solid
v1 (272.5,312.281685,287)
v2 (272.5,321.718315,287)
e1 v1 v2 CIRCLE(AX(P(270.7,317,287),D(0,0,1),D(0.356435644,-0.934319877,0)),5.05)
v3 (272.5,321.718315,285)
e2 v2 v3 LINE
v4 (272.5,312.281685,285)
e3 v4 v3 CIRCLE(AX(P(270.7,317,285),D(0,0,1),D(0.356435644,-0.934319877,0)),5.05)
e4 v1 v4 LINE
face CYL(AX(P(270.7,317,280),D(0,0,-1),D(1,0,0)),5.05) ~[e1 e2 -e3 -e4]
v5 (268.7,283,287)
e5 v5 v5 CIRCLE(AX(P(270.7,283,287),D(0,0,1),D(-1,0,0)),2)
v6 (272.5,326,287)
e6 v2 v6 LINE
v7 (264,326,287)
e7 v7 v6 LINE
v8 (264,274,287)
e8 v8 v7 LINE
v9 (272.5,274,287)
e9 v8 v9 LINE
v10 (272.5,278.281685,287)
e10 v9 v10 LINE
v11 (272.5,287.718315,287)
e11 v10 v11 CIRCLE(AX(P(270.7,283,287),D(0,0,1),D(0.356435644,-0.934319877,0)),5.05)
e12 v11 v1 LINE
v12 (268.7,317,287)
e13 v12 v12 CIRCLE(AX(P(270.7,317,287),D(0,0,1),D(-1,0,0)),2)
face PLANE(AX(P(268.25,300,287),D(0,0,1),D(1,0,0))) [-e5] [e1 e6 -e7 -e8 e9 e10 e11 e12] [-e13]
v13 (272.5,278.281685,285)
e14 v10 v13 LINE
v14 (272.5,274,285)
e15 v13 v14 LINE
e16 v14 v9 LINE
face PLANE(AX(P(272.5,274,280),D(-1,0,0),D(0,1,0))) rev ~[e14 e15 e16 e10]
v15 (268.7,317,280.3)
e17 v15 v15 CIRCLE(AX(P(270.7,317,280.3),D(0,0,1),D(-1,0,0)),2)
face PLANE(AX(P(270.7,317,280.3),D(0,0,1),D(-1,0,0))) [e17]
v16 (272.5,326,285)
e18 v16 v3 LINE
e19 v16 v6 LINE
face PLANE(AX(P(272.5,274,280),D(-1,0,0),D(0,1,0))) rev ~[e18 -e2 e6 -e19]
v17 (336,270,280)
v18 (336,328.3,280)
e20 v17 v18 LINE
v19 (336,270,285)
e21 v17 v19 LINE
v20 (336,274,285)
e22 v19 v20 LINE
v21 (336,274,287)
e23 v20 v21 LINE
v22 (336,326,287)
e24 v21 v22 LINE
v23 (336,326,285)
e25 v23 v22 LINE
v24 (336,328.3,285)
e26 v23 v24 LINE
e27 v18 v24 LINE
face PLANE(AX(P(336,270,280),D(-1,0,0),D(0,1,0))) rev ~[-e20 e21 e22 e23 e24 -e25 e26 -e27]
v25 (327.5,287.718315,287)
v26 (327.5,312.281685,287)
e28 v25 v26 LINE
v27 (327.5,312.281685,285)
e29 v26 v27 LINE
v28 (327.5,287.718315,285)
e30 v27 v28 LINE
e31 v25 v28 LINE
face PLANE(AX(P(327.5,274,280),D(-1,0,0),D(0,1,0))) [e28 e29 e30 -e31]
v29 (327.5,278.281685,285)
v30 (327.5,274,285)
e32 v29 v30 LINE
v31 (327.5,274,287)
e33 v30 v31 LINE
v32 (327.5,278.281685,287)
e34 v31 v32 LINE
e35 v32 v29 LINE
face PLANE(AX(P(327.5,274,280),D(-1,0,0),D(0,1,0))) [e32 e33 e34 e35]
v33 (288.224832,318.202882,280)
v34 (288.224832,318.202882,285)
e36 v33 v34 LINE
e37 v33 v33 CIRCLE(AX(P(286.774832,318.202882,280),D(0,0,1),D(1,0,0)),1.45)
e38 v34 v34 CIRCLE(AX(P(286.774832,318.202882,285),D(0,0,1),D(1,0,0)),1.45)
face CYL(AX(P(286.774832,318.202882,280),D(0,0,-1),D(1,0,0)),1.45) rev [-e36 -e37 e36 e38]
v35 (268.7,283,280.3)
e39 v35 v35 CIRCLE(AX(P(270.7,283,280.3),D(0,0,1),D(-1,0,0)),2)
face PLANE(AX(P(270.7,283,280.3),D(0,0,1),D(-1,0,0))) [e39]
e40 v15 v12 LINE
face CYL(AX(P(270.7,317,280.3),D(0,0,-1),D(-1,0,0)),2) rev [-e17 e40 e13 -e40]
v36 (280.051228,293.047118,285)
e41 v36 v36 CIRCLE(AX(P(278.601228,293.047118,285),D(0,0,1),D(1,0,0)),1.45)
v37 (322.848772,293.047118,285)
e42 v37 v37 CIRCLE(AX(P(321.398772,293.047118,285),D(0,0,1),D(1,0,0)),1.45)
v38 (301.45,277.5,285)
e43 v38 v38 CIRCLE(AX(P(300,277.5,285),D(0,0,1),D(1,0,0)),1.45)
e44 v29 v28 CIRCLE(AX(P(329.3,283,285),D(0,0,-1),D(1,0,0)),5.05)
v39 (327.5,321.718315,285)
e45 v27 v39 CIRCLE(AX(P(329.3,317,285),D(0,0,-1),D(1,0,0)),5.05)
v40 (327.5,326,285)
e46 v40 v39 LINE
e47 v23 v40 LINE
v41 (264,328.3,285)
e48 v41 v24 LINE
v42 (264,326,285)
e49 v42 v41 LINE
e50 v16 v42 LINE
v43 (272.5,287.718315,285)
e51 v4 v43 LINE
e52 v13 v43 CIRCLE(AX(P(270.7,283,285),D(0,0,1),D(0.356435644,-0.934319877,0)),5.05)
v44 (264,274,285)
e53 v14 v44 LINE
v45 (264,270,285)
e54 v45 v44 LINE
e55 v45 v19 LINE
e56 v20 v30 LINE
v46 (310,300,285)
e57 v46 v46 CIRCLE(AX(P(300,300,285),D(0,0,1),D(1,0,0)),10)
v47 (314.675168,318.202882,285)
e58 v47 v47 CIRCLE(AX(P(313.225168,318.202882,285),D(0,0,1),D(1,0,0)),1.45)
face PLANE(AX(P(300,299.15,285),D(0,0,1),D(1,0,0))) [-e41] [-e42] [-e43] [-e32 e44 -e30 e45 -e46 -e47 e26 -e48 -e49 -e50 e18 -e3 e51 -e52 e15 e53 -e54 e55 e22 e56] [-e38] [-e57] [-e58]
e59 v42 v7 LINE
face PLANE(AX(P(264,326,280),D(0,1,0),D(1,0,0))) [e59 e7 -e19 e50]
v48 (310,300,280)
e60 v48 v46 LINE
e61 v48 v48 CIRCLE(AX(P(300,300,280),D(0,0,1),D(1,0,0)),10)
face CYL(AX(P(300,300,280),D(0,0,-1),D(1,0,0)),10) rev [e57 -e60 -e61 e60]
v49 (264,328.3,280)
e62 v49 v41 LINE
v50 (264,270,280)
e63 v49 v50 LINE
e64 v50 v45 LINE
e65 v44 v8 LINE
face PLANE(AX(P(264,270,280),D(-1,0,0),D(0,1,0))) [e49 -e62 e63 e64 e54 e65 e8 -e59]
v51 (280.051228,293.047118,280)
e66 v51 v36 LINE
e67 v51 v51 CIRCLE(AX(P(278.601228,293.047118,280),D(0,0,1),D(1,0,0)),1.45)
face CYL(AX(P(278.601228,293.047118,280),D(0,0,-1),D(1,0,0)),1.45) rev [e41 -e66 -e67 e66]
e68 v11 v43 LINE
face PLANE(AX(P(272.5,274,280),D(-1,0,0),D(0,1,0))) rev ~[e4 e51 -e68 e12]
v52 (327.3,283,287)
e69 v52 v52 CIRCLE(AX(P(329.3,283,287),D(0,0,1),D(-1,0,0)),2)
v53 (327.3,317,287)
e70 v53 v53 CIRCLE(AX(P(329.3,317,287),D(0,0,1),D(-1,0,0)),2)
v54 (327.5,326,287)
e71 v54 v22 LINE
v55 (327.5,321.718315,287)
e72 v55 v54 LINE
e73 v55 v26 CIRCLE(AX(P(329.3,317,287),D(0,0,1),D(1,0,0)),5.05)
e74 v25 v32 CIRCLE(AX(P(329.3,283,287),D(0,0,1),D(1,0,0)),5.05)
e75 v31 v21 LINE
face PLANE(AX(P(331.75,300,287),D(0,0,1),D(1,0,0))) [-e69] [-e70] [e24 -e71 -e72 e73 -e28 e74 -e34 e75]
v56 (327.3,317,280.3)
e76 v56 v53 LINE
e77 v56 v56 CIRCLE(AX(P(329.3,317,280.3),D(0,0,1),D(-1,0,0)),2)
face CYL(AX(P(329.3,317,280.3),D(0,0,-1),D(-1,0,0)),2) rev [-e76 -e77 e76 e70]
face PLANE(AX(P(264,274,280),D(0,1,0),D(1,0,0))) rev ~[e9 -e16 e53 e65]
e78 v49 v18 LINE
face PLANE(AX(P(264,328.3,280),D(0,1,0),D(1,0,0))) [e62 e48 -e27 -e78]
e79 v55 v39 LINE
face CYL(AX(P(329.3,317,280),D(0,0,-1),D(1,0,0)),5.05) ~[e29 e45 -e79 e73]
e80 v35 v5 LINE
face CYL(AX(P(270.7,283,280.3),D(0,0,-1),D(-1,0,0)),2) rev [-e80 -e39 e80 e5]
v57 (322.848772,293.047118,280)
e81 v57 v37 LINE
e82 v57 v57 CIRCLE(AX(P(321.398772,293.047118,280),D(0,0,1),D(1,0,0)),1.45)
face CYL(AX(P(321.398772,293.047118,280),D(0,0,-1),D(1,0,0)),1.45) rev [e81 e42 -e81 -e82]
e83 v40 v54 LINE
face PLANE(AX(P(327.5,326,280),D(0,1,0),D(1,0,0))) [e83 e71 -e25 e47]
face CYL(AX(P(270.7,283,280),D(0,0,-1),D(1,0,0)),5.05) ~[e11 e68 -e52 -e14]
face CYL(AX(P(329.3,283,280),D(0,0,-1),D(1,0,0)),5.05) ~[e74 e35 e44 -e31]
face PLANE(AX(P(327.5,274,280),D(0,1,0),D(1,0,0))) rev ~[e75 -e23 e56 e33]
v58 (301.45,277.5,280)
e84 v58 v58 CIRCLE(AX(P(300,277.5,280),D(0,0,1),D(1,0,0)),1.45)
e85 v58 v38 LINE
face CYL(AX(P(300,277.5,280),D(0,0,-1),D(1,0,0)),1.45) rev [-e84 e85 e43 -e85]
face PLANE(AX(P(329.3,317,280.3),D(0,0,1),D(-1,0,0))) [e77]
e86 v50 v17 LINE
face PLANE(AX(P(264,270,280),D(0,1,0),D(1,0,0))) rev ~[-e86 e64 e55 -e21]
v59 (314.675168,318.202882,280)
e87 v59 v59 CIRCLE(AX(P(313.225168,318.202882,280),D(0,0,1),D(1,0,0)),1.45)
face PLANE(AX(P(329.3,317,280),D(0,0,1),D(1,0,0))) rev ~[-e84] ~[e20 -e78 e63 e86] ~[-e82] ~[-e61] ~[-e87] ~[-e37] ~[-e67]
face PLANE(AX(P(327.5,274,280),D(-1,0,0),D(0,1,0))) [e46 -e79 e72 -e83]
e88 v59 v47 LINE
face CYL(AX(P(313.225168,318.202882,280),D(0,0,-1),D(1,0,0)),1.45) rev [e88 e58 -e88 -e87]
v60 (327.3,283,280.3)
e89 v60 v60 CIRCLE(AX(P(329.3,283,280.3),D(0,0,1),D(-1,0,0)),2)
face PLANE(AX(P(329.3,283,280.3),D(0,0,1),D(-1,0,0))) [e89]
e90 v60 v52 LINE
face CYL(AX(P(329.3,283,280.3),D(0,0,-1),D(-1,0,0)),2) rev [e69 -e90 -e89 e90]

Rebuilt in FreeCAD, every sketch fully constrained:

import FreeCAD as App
import Part
import Sketcher

doc = App.newDocument("Part")
body = doc.addObject("PartDesign::Body", "Body")

sketch1 = doc.addObject("Sketcher::SketchObject", "Sketch")
body.addObject(sketch1)
sketch1.AttachmentSupport = (doc.XY_Plane, [""])
sketch1.MapMode = "FlatFace"
sketch1.AttachmentOffset = App.Placement(App.Vector(0, 0, 280), App.Rotation())
sketch1.addGeometry([
    Part.LineSegment(App.Vector(264, 328.3, 0), App.Vector(264, 270, 0)),
    Part.LineSegment(App.Vector(264, 270, 0), App.Vector(336, 270, 0)),
    Part.LineSegment(App.Vector(336, 270, 0), App.Vector(336, 328.3, 0)),
    Part.LineSegment(App.Vector(336, 328.3, 0), App.Vector(264, 328.3, 0)),
    Part.Circle(App.Vector(300, 277.5, 0), App.Vector(0, 0, 1), 1.4),
    Part.Circle(App.Vector(278.6, 293, 0), App.Vector(0, 0, 1), 1.4),
    Part.Circle(App.Vector(321.4, 293, 0), App.Vector(0, 0, 1), 1.4),
    Part.Circle(App.Vector(300, 300, 0), App.Vector(0, 0, 1), 10),
    Part.Circle(App.Vector(286.8, 318.2, 0), App.Vector(0, 0, 1), 1.4),
    Part.Circle(App.Vector(313.2, 318.2, 0), App.Vector(0, 0, 1), 1.4),
], False)
sketch1.addConstraint([
    Sketcher.Constraint("Coincident", 0, 2, 1, 1),
    Sketcher.Constraint("Coincident", 1, 2, 2, 1),
    Sketcher.Constraint("Coincident", 2, 2, 3, 1),
    Sketcher.Constraint("Coincident", 3, 2, 0, 1),
    Sketcher.Constraint("Vertical", 0),
    Sketcher.Constraint("Horizontal", 1),
    Sketcher.Constraint("Vertical", 2),
    Sketcher.Constraint("Horizontal", 3),
    Sketcher.Constraint("Equal", 4, 5),
    Sketcher.Constraint("Equal", 5, 6),
    Sketcher.Constraint("Equal", 6, 8),
    Sketcher.Constraint("Equal", 8, 9),
    Sketcher.Constraint("Horizontal", 5, 3, 6, 3),
    Sketcher.Constraint("Horizontal", 8, 3, 9, 3),
    Sketcher.Constraint("Vertical", 4, 3, 7, 3),
    Sketcher.Constraint("Diameter", 7, 20.0),
    Sketcher.Constraint("Diameter", 4, 2.9),
    Sketcher.Constraint("DistanceX", 1, 1, 1, 2, 72.0),
    Sketcher.Constraint("DistanceY", 0, 2, 0, 1, 58.3),
    Sketcher.Constraint("DistanceX", -1, 1, 4, 3, 300.0),
    Sketcher.Constraint("DistanceY", -1, 1, 7, 3, 300.0),
    Sketcher.Constraint("DistanceX", -1, 1, 0, 2, 264.0),
    Sketcher.Constraint("DistanceY", -1, 1, 0, 2, 270.0),
    Sketcher.Constraint("DistanceY", -1, 1, 4, 3, 277.5),
    Sketcher.Constraint("DistanceX", -1, 1, 5, 3, 278.601228),
    Sketcher.Constraint("DistanceX", -1, 1, 6, 3, 321.398772),
    Sketcher.Constraint("DistanceX", -1, 1, 8, 3, 286.774832),
    Sketcher.Constraint("DistanceX", -1, 1, 9, 3, 313.225168),
    Sketcher.Constraint("DistanceY", -1, 1, 5, 3, 293.047118),
    Sketcher.Constraint("DistanceY", -1, 1, 8, 3, 318.202882),
])
pad1 = doc.addObject("PartDesign::Pad", "Pad")
body.addObject(pad1)
pad1.Profile = sketch1
pad1.Length = 5

sketch2 = doc.addObject("Sketcher::SketchObject", "Sketch001")
body.addObject(sketch2)
sketch2.AttachmentSupport = (doc.XY_Plane, [""])
sketch2.MapMode = "FlatFace"
sketch2.AttachmentOffset = App.Placement(App.Vector(0, 0, 280), App.Rotation())
sketch2.addGeometry([
    Part.LineSegment(App.Vector(264, 326, 0), App.Vector(264, 274, 0)),
    Part.LineSegment(App.Vector(264, 274, 0), App.Vector(272, 274, 0)),
    Part.LineSegment(App.Vector(272, 274, 0), App.Vector(272, 326, 0)),
    Part.LineSegment(App.Vector(272, 326, 0), App.Vector(264, 326, 0)),
], False)
sketch2.addConstraint([
    Sketcher.Constraint("Coincident", 0, 2, 1, 1),
    Sketcher.Constraint("Coincident", 1, 2, 2, 1),
    Sketcher.Constraint("Coincident", 2, 2, 3, 1),
    Sketcher.Constraint("Coincident", 3, 2, 0, 1),
    Sketcher.Constraint("Vertical", 0),
    Sketcher.Constraint("Horizontal", 1),
    Sketcher.Constraint("Vertical", 2),
    Sketcher.Constraint("Horizontal", 3),
    Sketcher.Constraint("DistanceY", 0, 2, 0, 1, 52.0),
    Sketcher.Constraint("DistanceX", 1, 1, 1, 2, 8.5),
    Sketcher.Constraint("DistanceX", -1, 1, 0, 2, 264.0),
    Sketcher.Constraint("DistanceY", -1, 1, 0, 2, 274.0),
])
pad2 = doc.addObject("PartDesign::Pad", "Pad001")
body.addObject(pad2)
pad2.Profile = sketch2
pad2.Length = 7

sketch3 = doc.addObject("Sketcher::SketchObject", "Sketch002")
body.addObject(sketch3)
sketch3.AttachmentSupport = (doc.XY_Plane, [""])
sketch3.MapMode = "FlatFace"
sketch3.AttachmentOffset = App.Placement(App.Vector(0, 0, 280), App.Rotation())
sketch3.addGeometry(Part.Circle(App.Vector(271, 283, 0), App.Vector(0, 0, 1), 5), False)
sketch3.addConstraint([
    Sketcher.Constraint("Diameter", 0, 10.1),
    Sketcher.Constraint("DistanceY", -1, 1, 0, 3, 283.0),
    Sketcher.Constraint("DistanceX", -1, 1, 0, 3, 270.7),
])
pad3 = doc.addObject("PartDesign::Pad", "Pad002")
body.addObject(pad3)
pad3.Profile = sketch3
pad3.Length = 7

sketch4 = doc.addObject("Sketcher::SketchObject", "Sketch003")
body.addObject(sketch4)
sketch4.AttachmentSupport = (doc.XY_Plane, [""])
sketch4.MapMode = "FlatFace"
sketch4.AttachmentOffset = App.Placement(App.Vector(0, 0, 280), App.Rotation())
sketch4.addGeometry(Part.Circle(App.Vector(271, 317, 0), App.Vector(0, 0, 1), 5), False)
sketch4.addConstraint([
    Sketcher.Constraint("Diameter", 0, 10.1),
    Sketcher.Constraint("DistanceY", -1, 1, 0, 3, 317.0),
    Sketcher.Constraint("DistanceX", -1, 1, 0, 3, 270.7),
])
pad4 = doc.addObject("PartDesign::Pad", "Pad003")
body.addObject(pad4)
pad4.Profile = sketch4
pad4.Length = 7

sketch5 = doc.addObject("Sketcher::SketchObject", "Sketch004")
body.addObject(sketch5)
sketch5.AttachmentSupport = (doc.XY_Plane, [""])
sketch5.MapMode = "FlatFace"
sketch5.AttachmentOffset = App.Placement(App.Vector(0, 0, 280.3), App.Rotation())
sketch5.addGeometry([
    Part.Circle(App.Vector(270.7, 283, 0), App.Vector(0, 0, 1), 2),
    Part.Circle(App.Vector(270.7, 317, 0), App.Vector(0, 0, 1), 2),
], False)
sketch5.addConstraint([
    Sketcher.Constraint("Equal", 0, 1),
    Sketcher.Constraint("Vertical", 0, 3, 1, 3),
    Sketcher.Constraint("Diameter", 0, 4.0),
    Sketcher.Constraint("DistanceY", -1, 1, 0, 3, 283.0),
    Sketcher.Constraint("DistanceY", -1, 1, 1, 3, 317.0),
    Sketcher.Constraint("DistanceX", -1, 1, 0, 3, 270.7),
])
pocket1 = doc.addObject("PartDesign::Pocket", "Pocket")
body.addObject(pocket1)
pocket1.Profile = sketch5
pocket1.Length = 6.7
pocket1.Reversed = True

sketch6 = doc.addObject("Sketcher::SketchObject", "Sketch005")
body.addObject(sketch6)
sketch6.AttachmentSupport = (doc.XY_Plane, [""])
sketch6.MapMode = "FlatFace"
sketch6.AttachmentOffset = App.Placement(App.Vector(0, 0, 280), App.Rotation())
sketch6.addGeometry([
    Part.LineSegment(App.Vector(328, 326, 0), App.Vector(328, 274, 0)),
    Part.LineSegment(App.Vector(328, 274, 0), App.Vector(336, 274, 0)),
    Part.LineSegment(App.Vector(336, 274, 0), App.Vector(336, 326, 0)),
    Part.LineSegment(App.Vector(336, 326, 0), App.Vector(328, 326, 0)),
], False)
sketch6.addConstraint([
    Sketcher.Constraint("Coincident", 0, 2, 1, 1),
    Sketcher.Constraint("Coincident", 1, 2, 2, 1),
    Sketcher.Constraint("Coincident", 2, 2, 3, 1),
    Sketcher.Constraint("Coincident", 3, 2, 0, 1),
    Sketcher.Constraint("Vertical", 0),
    Sketcher.Constraint("Horizontal", 1),
    Sketcher.Constraint("Vertical", 2),
    Sketcher.Constraint("Horizontal", 3),
    Sketcher.Constraint("DistanceY", 0, 2, 0, 1, 52.0),
    Sketcher.Constraint("DistanceX", 1, 1, 1, 2, 8.5),
    Sketcher.Constraint("DistanceY", -1, 1, 0, 2, 274.0),
    Sketcher.Constraint("DistanceX", -1, 1, 1, 2, 336.0),
])
pad5 = doc.addObject("PartDesign::Pad", "Pad004")
body.addObject(pad5)
pad5.Profile = sketch6
pad5.Length = 7

sketch7 = doc.addObject("Sketcher::SketchObject", "Sketch006")
body.addObject(sketch7)
sketch7.AttachmentSupport = (doc.XY_Plane, [""])
sketch7.MapMode = "FlatFace"
sketch7.AttachmentOffset = App.Placement(App.Vector(0, 0, 280), App.Rotation())
sketch7.addGeometry(Part.Circle(App.Vector(329, 283, 0), App.Vector(0, 0, 1), 5), False)
sketch7.addConstraint([
    Sketcher.Constraint("Diameter", 0, 10.1),
    Sketcher.Constraint("DistanceY", -1, 1, 0, 3, 283.0),
    Sketcher.Constraint("DistanceX", -1, 1, 0, 3, 329.3),
])
pad6 = doc.addObject("PartDesign::Pad", "Pad005")
body.addObject(pad6)
pad6.Profile = sketch7
pad6.Length = 7

sketch8 = doc.addObject("Sketcher::SketchObject", "Sketch007")
body.addObject(sketch8)
sketch8.AttachmentSupport = (doc.XY_Plane, [""])
sketch8.MapMode = "FlatFace"
sketch8.AttachmentOffset = App.Placement(App.Vector(0, 0, 280), App.Rotation())
sketch8.addGeometry(Part.Circle(App.Vector(329, 317, 0), App.Vector(0, 0, 1), 5), False)
sketch8.addConstraint([
    Sketcher.Constraint("Diameter", 0, 10.1),
    Sketcher.Constraint("DistanceY", -1, 1, 0, 3, 317.0),
    Sketcher.Constraint("DistanceX", -1, 1, 0, 3, 329.3),
])
pad7 = doc.addObject("PartDesign::Pad", "Pad006")
body.addObject(pad7)
pad7.Profile = sketch8
pad7.Length = 7

sketch9 = doc.addObject("Sketcher::SketchObject", "Sketch008")
body.addObject(sketch9)
sketch9.AttachmentSupport = (doc.XY_Plane, [""])
sketch9.MapMode = "FlatFace"
sketch9.AttachmentOffset = App.Placement(App.Vector(0, 0, 280.3), App.Rotation())
sketch9.addGeometry([
    Part.Circle(App.Vector(329.3, 283, 0), App.Vector(0, 0, 1), 2),
    Part.Circle(App.Vector(329.3, 317, 0), App.Vector(0, 0, 1), 2),
], False)
sketch9.addConstraint([
    Sketcher.Constraint("Equal", 0, 1),
    Sketcher.Constraint("Vertical", 0, 3, 1, 3),
    Sketcher.Constraint("Diameter", 0, 4.0),
    Sketcher.Constraint("DistanceY", -1, 1, 0, 3, 283.0),
    Sketcher.Constraint("DistanceY", -1, 1, 1, 3, 317.0),
    Sketcher.Constraint("DistanceX", -1, 1, 0, 3, 329.3),
])
pocket2 = doc.addObject("PartDesign::Pocket", "Pocket001")
body.addObject(pocket2)
pocket2.Profile = sketch9
pocket2.Length = 6.7
pocket2.Reversed = True

doc.recompute()
